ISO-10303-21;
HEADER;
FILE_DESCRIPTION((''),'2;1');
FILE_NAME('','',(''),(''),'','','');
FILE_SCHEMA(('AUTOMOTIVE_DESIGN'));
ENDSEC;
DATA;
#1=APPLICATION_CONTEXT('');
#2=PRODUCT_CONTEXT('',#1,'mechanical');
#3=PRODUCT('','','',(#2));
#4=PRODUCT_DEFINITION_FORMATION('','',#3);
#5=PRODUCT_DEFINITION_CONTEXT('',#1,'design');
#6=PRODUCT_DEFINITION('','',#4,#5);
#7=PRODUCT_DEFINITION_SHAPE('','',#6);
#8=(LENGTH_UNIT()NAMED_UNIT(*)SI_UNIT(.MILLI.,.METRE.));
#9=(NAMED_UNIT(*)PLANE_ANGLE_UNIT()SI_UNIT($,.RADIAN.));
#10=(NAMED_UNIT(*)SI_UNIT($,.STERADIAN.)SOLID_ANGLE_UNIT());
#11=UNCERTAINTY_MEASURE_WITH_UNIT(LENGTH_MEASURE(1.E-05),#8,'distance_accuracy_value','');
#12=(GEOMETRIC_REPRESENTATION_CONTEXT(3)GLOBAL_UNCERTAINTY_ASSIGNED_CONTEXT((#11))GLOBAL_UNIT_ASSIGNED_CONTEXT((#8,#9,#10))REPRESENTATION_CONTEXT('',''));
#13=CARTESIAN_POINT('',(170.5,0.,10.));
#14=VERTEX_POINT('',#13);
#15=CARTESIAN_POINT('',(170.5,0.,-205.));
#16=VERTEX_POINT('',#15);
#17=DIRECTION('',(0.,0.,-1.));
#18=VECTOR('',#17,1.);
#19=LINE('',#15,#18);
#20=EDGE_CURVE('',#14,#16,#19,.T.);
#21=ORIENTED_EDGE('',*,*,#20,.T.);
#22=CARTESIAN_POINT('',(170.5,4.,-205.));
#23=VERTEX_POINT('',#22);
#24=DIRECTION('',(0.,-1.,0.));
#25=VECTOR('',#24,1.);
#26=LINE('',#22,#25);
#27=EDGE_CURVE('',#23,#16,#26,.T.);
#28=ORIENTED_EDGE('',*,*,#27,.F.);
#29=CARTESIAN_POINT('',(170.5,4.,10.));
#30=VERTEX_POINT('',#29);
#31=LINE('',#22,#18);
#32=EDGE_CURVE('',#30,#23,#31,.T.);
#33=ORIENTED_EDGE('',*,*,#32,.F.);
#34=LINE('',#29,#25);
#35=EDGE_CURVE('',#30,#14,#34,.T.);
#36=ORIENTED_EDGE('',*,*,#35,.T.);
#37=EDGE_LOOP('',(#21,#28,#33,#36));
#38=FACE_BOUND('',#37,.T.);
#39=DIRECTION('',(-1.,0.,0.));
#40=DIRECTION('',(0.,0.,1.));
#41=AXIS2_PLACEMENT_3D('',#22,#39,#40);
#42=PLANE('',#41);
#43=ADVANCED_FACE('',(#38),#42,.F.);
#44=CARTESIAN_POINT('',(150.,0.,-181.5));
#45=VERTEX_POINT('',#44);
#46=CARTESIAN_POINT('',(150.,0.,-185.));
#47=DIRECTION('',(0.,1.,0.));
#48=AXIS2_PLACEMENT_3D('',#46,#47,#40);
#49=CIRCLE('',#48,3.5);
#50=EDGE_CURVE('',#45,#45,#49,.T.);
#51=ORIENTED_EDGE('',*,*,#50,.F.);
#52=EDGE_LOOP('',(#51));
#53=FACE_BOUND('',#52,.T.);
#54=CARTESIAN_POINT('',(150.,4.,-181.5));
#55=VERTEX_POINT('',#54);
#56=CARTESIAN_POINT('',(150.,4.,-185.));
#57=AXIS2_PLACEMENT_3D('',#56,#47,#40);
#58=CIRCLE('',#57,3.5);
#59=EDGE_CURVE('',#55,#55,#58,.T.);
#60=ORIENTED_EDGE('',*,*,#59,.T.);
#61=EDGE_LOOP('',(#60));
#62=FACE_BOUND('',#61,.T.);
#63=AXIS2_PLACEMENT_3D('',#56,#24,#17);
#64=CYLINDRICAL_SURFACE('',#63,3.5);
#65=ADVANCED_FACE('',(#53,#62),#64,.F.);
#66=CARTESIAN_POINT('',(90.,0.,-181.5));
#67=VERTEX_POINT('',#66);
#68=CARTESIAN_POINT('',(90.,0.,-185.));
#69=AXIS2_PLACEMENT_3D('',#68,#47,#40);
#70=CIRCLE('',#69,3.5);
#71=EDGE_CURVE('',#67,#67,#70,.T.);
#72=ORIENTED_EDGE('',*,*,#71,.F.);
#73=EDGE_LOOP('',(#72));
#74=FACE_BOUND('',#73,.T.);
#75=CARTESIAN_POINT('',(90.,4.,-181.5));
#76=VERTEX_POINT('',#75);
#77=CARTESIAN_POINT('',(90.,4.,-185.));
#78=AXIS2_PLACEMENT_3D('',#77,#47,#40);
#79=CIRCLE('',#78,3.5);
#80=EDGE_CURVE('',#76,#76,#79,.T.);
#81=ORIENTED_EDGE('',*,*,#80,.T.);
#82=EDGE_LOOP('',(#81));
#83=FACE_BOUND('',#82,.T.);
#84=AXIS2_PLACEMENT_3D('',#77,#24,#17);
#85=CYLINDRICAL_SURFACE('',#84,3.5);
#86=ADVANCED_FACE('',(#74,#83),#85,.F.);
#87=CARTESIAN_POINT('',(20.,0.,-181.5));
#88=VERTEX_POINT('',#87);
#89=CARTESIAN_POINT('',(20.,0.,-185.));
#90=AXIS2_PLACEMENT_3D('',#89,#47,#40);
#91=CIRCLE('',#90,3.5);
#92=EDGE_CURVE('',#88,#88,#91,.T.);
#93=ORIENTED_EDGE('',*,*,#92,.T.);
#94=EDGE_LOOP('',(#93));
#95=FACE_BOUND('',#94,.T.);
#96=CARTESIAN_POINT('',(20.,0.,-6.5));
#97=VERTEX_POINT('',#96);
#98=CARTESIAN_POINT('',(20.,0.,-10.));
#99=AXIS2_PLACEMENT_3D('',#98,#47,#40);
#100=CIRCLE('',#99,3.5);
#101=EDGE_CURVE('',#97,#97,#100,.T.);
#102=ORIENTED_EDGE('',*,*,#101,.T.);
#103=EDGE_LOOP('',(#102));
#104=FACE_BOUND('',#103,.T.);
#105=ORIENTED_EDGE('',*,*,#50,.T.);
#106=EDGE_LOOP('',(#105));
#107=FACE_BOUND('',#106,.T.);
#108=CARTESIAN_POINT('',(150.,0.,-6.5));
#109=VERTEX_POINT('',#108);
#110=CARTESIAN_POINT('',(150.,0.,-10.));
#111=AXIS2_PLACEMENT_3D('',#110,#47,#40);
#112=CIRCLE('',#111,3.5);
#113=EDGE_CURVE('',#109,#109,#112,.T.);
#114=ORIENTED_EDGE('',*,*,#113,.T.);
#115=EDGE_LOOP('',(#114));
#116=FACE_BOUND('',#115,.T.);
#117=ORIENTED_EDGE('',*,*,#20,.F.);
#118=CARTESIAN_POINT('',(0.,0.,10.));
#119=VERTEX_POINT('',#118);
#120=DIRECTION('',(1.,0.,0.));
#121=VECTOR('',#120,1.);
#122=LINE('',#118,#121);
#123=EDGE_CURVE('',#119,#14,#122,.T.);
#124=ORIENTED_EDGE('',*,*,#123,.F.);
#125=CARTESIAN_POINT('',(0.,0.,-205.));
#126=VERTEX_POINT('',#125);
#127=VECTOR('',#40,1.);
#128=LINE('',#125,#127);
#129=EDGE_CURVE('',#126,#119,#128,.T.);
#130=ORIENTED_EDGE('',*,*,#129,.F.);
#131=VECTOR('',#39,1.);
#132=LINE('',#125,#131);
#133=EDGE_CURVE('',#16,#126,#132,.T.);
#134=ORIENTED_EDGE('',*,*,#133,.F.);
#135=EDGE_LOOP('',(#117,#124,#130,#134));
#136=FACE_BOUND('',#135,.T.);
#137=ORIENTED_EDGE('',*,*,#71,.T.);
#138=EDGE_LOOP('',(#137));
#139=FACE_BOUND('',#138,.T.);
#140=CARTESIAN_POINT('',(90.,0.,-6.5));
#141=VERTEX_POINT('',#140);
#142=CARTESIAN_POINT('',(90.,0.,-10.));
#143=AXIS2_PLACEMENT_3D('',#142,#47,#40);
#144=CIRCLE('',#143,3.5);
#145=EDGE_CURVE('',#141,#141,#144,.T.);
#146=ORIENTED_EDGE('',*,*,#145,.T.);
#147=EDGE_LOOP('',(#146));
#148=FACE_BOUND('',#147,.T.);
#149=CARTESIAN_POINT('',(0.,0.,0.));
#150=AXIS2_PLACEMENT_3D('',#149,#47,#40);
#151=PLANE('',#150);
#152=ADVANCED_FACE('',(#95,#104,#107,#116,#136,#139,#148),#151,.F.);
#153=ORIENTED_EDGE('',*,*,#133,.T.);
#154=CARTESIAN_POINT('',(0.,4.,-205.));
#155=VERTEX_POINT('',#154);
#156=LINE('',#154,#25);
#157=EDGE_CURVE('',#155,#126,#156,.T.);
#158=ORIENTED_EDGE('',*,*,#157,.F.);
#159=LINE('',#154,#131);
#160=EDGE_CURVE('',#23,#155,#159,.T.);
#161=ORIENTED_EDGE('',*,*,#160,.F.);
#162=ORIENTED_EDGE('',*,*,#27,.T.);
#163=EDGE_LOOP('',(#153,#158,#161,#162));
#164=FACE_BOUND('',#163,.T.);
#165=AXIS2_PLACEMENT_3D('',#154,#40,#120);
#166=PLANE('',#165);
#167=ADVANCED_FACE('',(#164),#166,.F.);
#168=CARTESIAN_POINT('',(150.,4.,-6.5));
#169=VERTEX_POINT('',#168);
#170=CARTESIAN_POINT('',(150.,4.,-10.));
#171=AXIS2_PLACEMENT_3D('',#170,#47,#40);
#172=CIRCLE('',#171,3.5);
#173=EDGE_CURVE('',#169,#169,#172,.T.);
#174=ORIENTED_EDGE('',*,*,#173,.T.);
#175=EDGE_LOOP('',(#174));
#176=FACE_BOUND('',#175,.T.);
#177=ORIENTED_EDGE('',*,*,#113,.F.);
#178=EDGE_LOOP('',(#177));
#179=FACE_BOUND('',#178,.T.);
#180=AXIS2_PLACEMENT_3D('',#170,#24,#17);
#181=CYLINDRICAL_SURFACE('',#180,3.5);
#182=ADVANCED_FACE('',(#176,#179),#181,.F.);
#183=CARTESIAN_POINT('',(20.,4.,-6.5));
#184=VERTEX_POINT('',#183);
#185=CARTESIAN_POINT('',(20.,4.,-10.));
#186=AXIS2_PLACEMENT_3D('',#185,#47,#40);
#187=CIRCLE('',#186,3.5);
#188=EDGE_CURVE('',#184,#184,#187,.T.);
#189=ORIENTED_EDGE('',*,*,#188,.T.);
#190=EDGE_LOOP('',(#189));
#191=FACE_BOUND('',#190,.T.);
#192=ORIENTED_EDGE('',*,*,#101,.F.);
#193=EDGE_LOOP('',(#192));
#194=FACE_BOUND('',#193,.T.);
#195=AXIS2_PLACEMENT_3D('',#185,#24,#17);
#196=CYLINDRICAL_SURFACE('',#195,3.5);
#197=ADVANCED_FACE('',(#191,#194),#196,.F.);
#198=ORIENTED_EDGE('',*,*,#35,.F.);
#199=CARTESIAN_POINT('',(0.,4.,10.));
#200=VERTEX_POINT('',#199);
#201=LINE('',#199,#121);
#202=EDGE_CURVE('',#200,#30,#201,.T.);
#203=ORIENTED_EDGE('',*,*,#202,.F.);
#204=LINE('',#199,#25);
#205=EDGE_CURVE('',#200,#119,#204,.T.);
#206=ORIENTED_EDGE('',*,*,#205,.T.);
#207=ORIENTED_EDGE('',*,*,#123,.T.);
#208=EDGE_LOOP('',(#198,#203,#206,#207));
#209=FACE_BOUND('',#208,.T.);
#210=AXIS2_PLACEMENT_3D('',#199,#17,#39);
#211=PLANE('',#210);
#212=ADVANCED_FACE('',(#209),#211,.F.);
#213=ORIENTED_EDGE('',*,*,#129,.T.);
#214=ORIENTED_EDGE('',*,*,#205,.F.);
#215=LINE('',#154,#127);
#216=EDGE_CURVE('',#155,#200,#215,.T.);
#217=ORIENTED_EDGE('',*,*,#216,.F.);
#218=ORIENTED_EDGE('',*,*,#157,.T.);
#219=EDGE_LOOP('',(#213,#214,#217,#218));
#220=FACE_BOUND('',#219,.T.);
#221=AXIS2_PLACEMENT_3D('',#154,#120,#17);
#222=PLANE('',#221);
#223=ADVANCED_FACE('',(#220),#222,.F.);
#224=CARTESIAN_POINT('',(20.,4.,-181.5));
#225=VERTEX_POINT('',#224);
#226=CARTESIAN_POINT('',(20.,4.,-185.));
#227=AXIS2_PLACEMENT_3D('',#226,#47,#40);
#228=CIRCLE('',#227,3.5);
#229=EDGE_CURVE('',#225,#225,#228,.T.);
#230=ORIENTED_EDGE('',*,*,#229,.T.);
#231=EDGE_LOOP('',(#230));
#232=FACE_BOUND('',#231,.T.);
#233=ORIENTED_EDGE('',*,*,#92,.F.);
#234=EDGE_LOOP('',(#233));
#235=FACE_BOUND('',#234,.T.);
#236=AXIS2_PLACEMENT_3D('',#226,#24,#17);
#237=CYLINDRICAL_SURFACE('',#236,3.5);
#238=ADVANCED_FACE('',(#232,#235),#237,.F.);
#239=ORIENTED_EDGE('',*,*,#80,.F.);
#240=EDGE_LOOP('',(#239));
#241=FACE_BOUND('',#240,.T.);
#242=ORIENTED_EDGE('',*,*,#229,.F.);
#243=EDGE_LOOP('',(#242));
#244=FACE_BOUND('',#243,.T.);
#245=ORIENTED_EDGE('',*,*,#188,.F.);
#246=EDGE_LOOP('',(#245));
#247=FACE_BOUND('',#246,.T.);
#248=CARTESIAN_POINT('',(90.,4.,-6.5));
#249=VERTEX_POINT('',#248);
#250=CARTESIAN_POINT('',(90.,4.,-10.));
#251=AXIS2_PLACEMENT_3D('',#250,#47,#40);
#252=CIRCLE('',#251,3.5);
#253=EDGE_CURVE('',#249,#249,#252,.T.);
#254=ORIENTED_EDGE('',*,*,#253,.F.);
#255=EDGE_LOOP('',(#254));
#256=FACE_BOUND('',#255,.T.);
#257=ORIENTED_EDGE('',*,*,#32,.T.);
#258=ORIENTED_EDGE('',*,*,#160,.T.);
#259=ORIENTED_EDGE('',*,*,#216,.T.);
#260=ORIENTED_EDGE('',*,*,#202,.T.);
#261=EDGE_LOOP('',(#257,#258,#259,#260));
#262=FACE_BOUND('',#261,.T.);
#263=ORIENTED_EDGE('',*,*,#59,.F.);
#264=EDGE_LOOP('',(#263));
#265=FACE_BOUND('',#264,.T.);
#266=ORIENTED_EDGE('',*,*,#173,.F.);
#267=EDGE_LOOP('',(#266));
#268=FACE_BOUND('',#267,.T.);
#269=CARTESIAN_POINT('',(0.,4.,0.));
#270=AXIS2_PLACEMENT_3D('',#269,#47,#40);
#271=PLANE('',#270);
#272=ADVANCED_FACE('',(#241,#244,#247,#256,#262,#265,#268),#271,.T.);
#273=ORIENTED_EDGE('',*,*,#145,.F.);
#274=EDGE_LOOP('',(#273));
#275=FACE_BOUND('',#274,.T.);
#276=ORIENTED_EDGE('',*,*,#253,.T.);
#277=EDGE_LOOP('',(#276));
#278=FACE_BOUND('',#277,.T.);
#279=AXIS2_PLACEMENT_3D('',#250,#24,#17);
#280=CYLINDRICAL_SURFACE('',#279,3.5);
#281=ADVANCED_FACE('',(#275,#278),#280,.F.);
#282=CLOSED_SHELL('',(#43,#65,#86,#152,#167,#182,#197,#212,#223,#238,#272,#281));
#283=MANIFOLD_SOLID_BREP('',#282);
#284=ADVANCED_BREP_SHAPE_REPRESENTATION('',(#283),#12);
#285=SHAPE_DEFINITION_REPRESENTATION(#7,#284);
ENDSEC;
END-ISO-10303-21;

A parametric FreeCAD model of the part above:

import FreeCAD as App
import Part
import Sketcher
Q = App.Units.Quantity


def add_polygon(sketch, points):
    """Adds a closed chain of lines whose ends are joined by coincident constraints."""
    first, n = sketch.GeometryCount, len(points)
    for a, b in zip(points, points[1:] + points[:1]):
        sketch.addGeometry(Part.LineSegment(App.Vector(*a, 0), App.Vector(*b, 0)), False)
    for i in range(n):
        sketch.addConstraint(Sketcher.Constraint("Coincident", first + i, 2, first + (i + 1) % n, 1))

doc = App.newDocument("Part")
body = doc.addObject("PartDesign::Body", "Body")

sketch1 = doc.addObject("Sketcher::SketchObject", "Sketch")
body.addObject(sketch1)
sketch1.AttachmentSupport = (doc.XZ_Plane, [""])
sketch1.MapMode = "FlatFace"
add_polygon(sketch1, [(0, -205), (0, 10), (170.5, 10), (170.5, -205)])
sketch1.addGeometry(Part.Circle(App.Vector(20, -10, 0), App.Vector(0, 0, 1), 3.5), False)
sketch1.addGeometry(Part.Circle(App.Vector(90, -10, 0), App.Vector(0, 0, 1), 3.5), False)
sketch1.addGeometry(Part.Circle(App.Vector(150, -10, 0), App.Vector(0, 0, 1), 3.5), False)
sketch1.addGeometry(Part.Circle(App.Vector(20, -185, 0), App.Vector(0, 0, 1), 3.5), False)
sketch1.addGeometry(Part.Circle(App.Vector(90, -185, 0), App.Vector(0, 0, 1), 3.5), False)
sketch1.addGeometry(Part.Circle(App.Vector(150, -185, 0), App.Vector(0, 0, 1), 3.5), False)
sketch1.addConstraint(Sketcher.Constraint("Vertical", 0))
sketch1.addConstraint(Sketcher.Constraint("Horizontal", 1))
sketch1.addConstraint(Sketcher.Constraint("Vertical", 2))
sketch1.addConstraint(Sketcher.Constraint("Horizontal", 3))
sketch1.addConstraint(Sketcher.Constraint("Equal", 4, 5))
sketch1.addConstraint(Sketcher.Constraint("Equal", 5, 6))
sketch1.addConstraint(Sketcher.Constraint("Equal", 6, 7))
sketch1.addConstraint(Sketcher.Constraint("Equal", 7, 8))
sketch1.addConstraint(Sketcher.Constraint("Equal", 8, 9))
sketch1.addConstraint(Sketcher.Constraint("PointOnObject", 0, 2, -2))
sketch1.addConstraint(Sketcher.Constraint("Horizontal", 4, 3, 5, 3))
sketch1.addConstraint(Sketcher.Constraint("Horizontal", 5, 3, 6, 3))
sketch1.addConstraint(Sketcher.Constraint("Horizontal", 7, 3, 8, 3))
sketch1.addConstraint(Sketcher.Constraint("Horizontal", 8, 3, 9, 3))
sketch1.addConstraint(Sketcher.Constraint("Vertical", 4, 3, 7, 3))
sketch1.addConstraint(Sketcher.Constraint("Vertical", 5, 3, 8, 3))
sketch1.addConstraint(Sketcher.Constraint("Vertical", 6, 3, 9, 3))
sketch1.addConstraint(Sketcher.Constraint("Diameter", 4, Q("7 mm")))
sketch1.addConstraint(Sketcher.Constraint("DistanceY", 0, 1, 0, 2, Q("215 mm")))
sketch1.addConstraint(Sketcher.Constraint("DistanceX", 1, 1, 1, 2, Q("170.5 mm")))
sketch1.addConstraint(Sketcher.Constraint("DistanceX", -1, 1, 4, 3, Q("20 mm")))
sketch1.addConstraint(Sketcher.Constraint("DistanceY", 4, 3, -1, 1, Q("10 mm")))
sketch1.addConstraint(Sketcher.Constraint("DistanceX", -1, 1, 5, 3, Q("90 mm")))
sketch1.addConstraint(Sketcher.Constraint("DistanceX", -1, 1, 6, 3, Q("150 mm")))
sketch1.addConstraint(Sketcher.Constraint("DistanceY", 7, 3, -1, 1, Q("185 mm")))
sketch1.addConstraint(Sketcher.Constraint("DistanceY", -1, 1, 0, 2, Q("10 mm")))
pad1 = doc.addObject("PartDesign::Pad", "Pad")
body.addObject(pad1)
pad1.Profile = sketch1
pad1.Length = 4
pad1.Reversed = True

doc.recompute()
